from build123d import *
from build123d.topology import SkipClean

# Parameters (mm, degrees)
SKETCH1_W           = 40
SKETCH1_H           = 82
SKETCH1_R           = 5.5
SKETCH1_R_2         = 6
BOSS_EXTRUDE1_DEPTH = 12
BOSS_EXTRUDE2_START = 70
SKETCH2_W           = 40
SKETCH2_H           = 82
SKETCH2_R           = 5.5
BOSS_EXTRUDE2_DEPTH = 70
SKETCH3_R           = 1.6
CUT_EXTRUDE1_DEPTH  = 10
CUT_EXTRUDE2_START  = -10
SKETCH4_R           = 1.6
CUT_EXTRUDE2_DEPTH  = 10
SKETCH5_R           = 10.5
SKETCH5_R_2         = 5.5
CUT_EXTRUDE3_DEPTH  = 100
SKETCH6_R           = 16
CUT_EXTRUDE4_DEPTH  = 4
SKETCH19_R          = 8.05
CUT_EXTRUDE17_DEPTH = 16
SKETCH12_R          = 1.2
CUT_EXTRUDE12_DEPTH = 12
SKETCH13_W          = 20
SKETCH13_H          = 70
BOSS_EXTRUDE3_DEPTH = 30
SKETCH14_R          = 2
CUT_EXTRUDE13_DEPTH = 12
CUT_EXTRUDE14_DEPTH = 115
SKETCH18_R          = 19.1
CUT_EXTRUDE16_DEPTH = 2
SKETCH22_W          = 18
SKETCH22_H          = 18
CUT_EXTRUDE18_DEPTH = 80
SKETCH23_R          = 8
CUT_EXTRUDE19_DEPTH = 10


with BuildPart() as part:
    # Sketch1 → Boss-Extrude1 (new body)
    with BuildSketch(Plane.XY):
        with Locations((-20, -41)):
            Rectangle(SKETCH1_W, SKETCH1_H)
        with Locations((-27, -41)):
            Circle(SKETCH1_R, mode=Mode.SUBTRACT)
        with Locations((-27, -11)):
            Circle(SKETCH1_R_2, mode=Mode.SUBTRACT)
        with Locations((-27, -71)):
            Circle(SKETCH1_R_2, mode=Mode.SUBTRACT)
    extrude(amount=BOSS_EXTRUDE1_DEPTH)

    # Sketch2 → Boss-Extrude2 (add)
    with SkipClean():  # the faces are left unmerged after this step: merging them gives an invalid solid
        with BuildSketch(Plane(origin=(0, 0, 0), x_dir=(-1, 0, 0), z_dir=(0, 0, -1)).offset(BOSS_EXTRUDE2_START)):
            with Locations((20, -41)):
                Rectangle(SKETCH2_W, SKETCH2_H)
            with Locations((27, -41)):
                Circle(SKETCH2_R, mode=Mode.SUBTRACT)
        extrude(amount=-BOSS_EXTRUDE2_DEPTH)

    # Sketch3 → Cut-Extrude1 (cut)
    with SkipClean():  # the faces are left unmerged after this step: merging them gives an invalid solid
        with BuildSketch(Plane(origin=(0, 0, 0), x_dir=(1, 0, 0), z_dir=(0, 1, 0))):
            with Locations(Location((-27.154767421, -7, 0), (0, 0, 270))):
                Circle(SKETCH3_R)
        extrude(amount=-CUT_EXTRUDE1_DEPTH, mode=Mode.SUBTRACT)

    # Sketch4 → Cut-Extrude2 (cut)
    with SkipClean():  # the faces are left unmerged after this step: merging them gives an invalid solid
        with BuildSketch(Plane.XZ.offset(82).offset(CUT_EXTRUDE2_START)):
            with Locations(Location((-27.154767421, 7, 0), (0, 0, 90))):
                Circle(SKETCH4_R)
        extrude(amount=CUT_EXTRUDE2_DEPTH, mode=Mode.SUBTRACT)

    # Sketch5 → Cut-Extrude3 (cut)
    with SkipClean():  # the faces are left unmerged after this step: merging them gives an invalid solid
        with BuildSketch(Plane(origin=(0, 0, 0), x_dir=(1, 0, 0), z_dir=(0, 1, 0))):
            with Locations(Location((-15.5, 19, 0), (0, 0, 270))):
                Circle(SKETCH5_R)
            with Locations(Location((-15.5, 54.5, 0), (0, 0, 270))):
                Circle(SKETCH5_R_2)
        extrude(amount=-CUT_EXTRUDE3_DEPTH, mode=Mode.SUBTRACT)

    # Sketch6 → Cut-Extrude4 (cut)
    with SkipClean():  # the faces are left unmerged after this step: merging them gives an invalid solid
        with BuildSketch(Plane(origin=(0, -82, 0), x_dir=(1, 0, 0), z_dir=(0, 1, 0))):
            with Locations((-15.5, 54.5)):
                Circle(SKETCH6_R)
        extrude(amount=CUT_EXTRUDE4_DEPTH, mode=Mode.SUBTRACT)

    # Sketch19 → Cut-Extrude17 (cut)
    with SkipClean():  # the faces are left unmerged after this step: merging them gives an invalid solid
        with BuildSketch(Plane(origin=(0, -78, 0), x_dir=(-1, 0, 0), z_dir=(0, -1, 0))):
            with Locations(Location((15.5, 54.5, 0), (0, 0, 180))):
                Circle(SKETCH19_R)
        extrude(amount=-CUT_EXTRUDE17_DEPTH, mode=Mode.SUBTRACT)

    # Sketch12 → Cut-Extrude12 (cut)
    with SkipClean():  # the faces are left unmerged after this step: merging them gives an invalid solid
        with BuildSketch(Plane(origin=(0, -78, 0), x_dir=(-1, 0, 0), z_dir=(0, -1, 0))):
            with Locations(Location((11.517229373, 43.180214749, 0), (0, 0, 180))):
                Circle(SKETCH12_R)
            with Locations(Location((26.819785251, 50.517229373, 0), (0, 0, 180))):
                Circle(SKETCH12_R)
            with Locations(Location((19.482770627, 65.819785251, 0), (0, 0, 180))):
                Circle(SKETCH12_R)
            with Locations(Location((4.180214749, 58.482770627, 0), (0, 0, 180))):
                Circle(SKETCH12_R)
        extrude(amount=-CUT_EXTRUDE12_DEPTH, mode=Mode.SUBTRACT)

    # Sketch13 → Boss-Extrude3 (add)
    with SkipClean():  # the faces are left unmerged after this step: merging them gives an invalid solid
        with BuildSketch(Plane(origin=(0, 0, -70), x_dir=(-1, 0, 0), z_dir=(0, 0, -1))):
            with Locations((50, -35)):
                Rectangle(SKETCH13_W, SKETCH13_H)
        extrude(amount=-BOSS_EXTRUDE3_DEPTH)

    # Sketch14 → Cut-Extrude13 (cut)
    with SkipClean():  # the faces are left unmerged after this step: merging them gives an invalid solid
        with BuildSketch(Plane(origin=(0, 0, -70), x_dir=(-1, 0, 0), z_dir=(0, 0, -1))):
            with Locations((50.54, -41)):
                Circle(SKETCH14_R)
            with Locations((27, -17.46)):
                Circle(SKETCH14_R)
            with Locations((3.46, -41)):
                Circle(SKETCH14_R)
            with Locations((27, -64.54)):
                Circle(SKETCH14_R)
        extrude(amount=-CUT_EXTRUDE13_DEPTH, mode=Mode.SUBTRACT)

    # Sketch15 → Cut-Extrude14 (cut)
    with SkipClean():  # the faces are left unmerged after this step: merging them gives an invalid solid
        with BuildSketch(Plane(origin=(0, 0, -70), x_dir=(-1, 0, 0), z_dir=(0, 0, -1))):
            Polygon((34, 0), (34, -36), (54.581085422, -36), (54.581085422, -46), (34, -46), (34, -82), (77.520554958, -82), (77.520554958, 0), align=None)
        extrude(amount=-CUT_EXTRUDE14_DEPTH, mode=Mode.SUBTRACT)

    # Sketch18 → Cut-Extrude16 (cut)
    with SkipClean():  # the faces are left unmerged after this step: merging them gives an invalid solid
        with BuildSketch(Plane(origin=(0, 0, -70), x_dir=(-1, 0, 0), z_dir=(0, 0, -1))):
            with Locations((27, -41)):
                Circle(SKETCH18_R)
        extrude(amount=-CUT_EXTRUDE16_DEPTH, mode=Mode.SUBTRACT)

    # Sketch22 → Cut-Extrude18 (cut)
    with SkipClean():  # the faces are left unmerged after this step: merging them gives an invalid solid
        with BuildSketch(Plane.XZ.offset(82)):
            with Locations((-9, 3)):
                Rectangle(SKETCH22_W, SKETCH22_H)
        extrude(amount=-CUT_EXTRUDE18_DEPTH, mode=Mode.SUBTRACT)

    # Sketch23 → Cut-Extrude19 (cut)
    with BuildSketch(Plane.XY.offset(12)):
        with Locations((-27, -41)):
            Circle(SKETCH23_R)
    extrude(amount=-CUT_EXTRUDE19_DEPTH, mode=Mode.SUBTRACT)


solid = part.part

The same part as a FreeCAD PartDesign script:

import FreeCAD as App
import Part
import Sketcher

V = App.Vector


def add_polygon(sketch, points):
    """Adds a closed chain of lines whose ends are joined by coincident constraints."""
    first, n = sketch.GeometryCount, len(points)
    for a, b in zip(points, points[1:] + points[:1]):
        sketch.addGeometry(Part.LineSegment(App.Vector(*a, 0), App.Vector(*b, 0)), False)
    for i in range(n):
        sketch.addConstraint(Sketcher.Constraint("Coincident", first + i, 2, first + (i + 1) % n, 1))

doc = App.newDocument("Part")
body = doc.addObject("PartDesign::Body", "Body")

# Sketch on XY plane
sketch1 = body.newObject("Sketcher::SketchObject", "Sketch")
sketch1.AttachmentSupport = (doc.getObject("XY_Plane"), [""])
sketch1.MapMode = "FlatFace"
add_polygon(sketch1, [(-40, 0), (-40, -82), (0, -82), (0, 0)])  # lines 0-3
sketch1.addGeometry(Part.Circle(V(-27, -71, 0), V(0, 0, 1), 6), False)  # 4
sketch1.addGeometry(Part.Circle(V(-27, -41, 0), V(0, 0, 1), 6), False)  # 5
sketch1.addGeometry(Part.Circle(V(-27, -11, 0), V(0, 0, 1), 6), False)  # 6
sketch1.addConstraint(Sketcher.Constraint("Vertical", 0))
sketch1.addConstraint(Sketcher.Constraint("Horizontal", 1))
sketch1.addConstraint(Sketcher.Constraint("Vertical", 2))
sketch1.addConstraint(Sketcher.Constraint("Horizontal", 3))
sketch1.addConstraint(Sketcher.Constraint("Coincident", 2, 2, -1, 1))
sketch1.addConstraint(Sketcher.Constraint("Equal", 4, 6))
sketch1.addConstraint(Sketcher.Constraint("Vertical", 4, 3, 5, 3))
sketch1.addConstraint(Sketcher.Constraint("Vertical", 5, 3, 6, 3))
sketch1.addConstraint(Sketcher.Constraint("Diameter", 4, 12.0))
sketch1.addConstraint(Sketcher.Constraint("Diameter", 5, 11.0))
sketch1.addConstraint(Sketcher.Constraint("DistanceX", 1, 1, 1, 2, 40.0))
sketch1.addConstraint(Sketcher.Constraint("DistanceY", 0, 2, 0, 1, 82.0))
sketch1.addConstraint(Sketcher.Constraint("DistanceX", 4, 3, -1, 1, 27.0))
sketch1.addConstraint(Sketcher.Constraint("DistanceY", 4, 3, -1, 1, 71.0))
sketch1.addConstraint(Sketcher.Constraint("DistanceY", 5, 3, -1, 1, 41.0))
sketch1.addConstraint(Sketcher.Constraint("DistanceY", 6, 3, -1, 1, 11.0))
pad1 = body.newObject("PartDesign::Pad", "Pad")
pad1.Profile = sketch1
pad1.Length = 12

# Sketch on XY plane
sketch2 = body.newObject("Sketcher::SketchObject", "Sketch001")
sketch2.AttachmentSupport = (doc.getObject("XY_Plane"), [""])
sketch2.MapMode = "FlatFace"
sketch2.AttachmentOffset = App.Placement(V(0, 0, -70), App.Rotation())
add_polygon(sketch2, [(0, 0), (0, -82), (-40, -82), (-40, 0)])  # lines 0-3
sketch2.addGeometry(Part.Circle(V(-27, -41, 0), V(0, 0, 1), 6), False)  # 4
sketch2.addConstraint(Sketcher.Constraint("Vertical", 0))
sketch2.addConstraint(Sketcher.Constraint("Horizontal", 1))
sketch2.addConstraint(Sketcher.Constraint("Vertical", 2))
sketch2.addConstraint(Sketcher.Constraint("Horizontal", 3))
sketch2.addConstraint(Sketcher.Constraint("Coincident", 3, 2, -1, 1))
sketch2.addConstraint(Sketcher.Constraint("Diameter", 4, 11.0))
sketch2.addConstraint(Sketcher.Constraint("DistanceX", 1, 2, 1, 1, 40.0))
sketch2.addConstraint(Sketcher.Constraint("DistanceY", 0, 2, 0, 1, 82.0))
sketch2.addConstraint(Sketcher.Constraint("DistanceX", 4, 3, -1, 1, 27.0))
sketch2.addConstraint(Sketcher.Constraint("DistanceY", 4, 3, -1, 1, 41.0))
pad2 = body.newObject("PartDesign::Pad", "Pad001")
pad2.Profile = sketch2
pad2.Length = 70

# Sketch on XZ plane
sketch3 = body.newObject("Sketcher::SketchObject", "Sketch002")
sketch3.AttachmentSupport = (doc.getObject("XZ_Plane"), [""])
sketch3.MapMode = "FlatFace"
sketch3.addGeometry(Part.Circle(V(-27.2, 7, 0), V(0, 0, 1), 1.6), False)
sketch3.addConstraint(Sketcher.Constraint("Diameter", 0, 3.2))
sketch3.addConstraint(Sketcher.Constraint("DistanceY", -1, 1, 0, 3, 7.0))
sketch3.addConstraint(Sketcher.Constraint("DistanceX", 0, 3, -1, 1, 27.154767))
pocket1 = body.newObject("PartDesign::Pocket", "Pocket")
pocket1.Profile = sketch3
pocket1.Length = 10
pocket1.Reversed = True

# Sketch on XZ plane
sketch4 = body.newObject("Sketcher::SketchObject", "Sketch003")
sketch4.AttachmentSupport = (doc.getObject("XZ_Plane"), [""])
sketch4.MapMode = "FlatFace"
sketch4.AttachmentOffset = App.Placement(V(0, 0, 72), App.Rotation())
sketch4.addGeometry(Part.Circle(V(-27.2, 7, 0), V(0, 0, 1), 1.6), False)
sketch4.addConstraint(Sketcher.Constraint("Diameter", 0, 3.2))
sketch4.addConstraint(Sketcher.Constraint("DistanceY", -1, 1, 0, 3, 7.0))
sketch4.addConstraint(Sketcher.Constraint("DistanceX", 0, 3, -1, 1, 27.154767))
pocket2 = body.newObject("PartDesign::Pocket", "Pocket001")
pocket2.Profile = sketch4
pocket2.Length = 10
pocket2.Reversed = True

# Sketch on XZ plane
sketch5 = body.newObject("Sketcher::SketchObject", "Sketch004")
sketch5.AttachmentSupport = (doc.getObject("XZ_Plane"), [""])
sketch5.MapMode = "FlatFace"
sketch5.addGeometry(Part.Circle(V(-16, -19, 0), V(0, 0, 1), 10), False)
sketch5.addGeometry(Part.Circle(V(-16, -54, 0), V(0, 0, 1), 6), False)
sketch5.addConstraint(Sketcher.Constraint("Vertical", 0, 3, 1, 3))
sketch5.addConstraint(Sketcher.Constraint("Diameter", 0, 21.0))
sketch5.addConstraint(Sketcher.Constraint("Diameter", 1, 11.0))
sketch5.addConstraint(Sketcher.Constraint("DistanceY", 0, 3, -1, 1, 19.0))
sketch5.addConstraint(Sketcher.Constraint("DistanceX", 0, 3, -1, 1, 15.5))
sketch5.addConstraint(Sketcher.Constraint("DistanceY", 1, 3, -1, 1, 54.5))
pocket3 = body.newObject("PartDesign::Pocket", "Pocket002")
pocket3.Profile = sketch5
pocket3.Length = 100
pocket3.Reversed = True

# Sketch on XZ plane
sketch6 = body.newObject("Sketcher::SketchObject", "Sketch005")
sketch6.AttachmentSupport = (doc.getObject("XZ_Plane"), [""])
sketch6.MapMode = "FlatFace"
sketch6.AttachmentOffset = App.Placement(V(0, 0, 82), App.Rotation())
sketch6.addGeometry(Part.Circle(V(-16, -54, 0), V(0, 0, 1), 16), False)
sketch6.addConstraint(Sketcher.Constraint("Diameter", 0, 32.0))
sketch6.addConstraint(Sketcher.Constraint("DistanceX", 0, 3, -1, 1, 15.5))
sketch6.addConstraint(Sketcher.Constraint("DistanceY", 0, 3, -1, 1, 54.5))
pocket4 = body.newObject("PartDesign::Pocket", "Pocket003")
pocket4.Profile = sketch6
pocket4.Length = 4

# Sketch on XZ plane
sketch7 = body.newObject("Sketcher::SketchObject", "Sketch006")
sketch7.AttachmentSupport = (doc.getObject("XZ_Plane"), [""])
sketch7.MapMode = "FlatFace"
sketch7.AttachmentOffset = App.Placement(V(0, 0, 78), App.Rotation())
sketch7.addGeometry(Part.Circle(V(-16, -54, 0), V(0, 0, 1), 8), False)
sketch7.addConstraint(Sketcher.Constraint("Diameter", 0, 16.1))
sketch7.addConstraint(Sketcher.Constraint("DistanceX", 0, 3, -1, 1, 15.5))
sketch7.addConstraint(Sketcher.Constraint("DistanceY", 0, 3, -1, 1, 54.5))
pocket5 = body.newObject("PartDesign::Pocket", "Pocket004")
pocket5.Profile = sketch7
pocket5.Length = 16

# Sketch on XZ plane
sketch8 = body.newObject("Sketcher::SketchObject", "Sketch007")
sketch8.AttachmentSupport = (doc.getObject("XZ_Plane"), [""])
sketch8.MapMode = "FlatFace"
sketch8.AttachmentOffset = App.Placement(V(0, 0, 78), App.Rotation())
sketch8.addGeometry(Part.Circle(V(-11.5, -43.2, 0), V(0, 0, 1), 1.2), False)
sketch8.addGeometry(Part.Circle(V(-26.8, -50.5, 0), V(0, 0, 1), 1.2), False)
sketch8.addGeometry(Part.Circle(V(-19.5, -65.8, 0), V(0, 0, 1), 1.2), False)
sketch8.addGeometry(Part.Circle(V(-4.2, -58.5, 0), V(0, 0, 1), 1.2), False)
sketch8.addConstraint(Sketcher.Constraint("Equal", 0, 1))
sketch8.addConstraint(Sketcher.Constraint("Equal", 1, 2))
sketch8.addConstraint(Sketcher.Constraint("Equal", 2, 3))
sketch8.addConstraint(Sketcher.Constraint("Diameter", 0, 2.4))
sketch8.addConstraint(Sketcher.Constraint("DistanceX", 0, 3, -1, 1, 11.517229))
sketch8.addConstraint(Sketcher.Constraint("DistanceY", 1, 3, -1, 1, 50.517229))
sketch8.addConstraint(Sketcher.Constraint("DistanceX", 2, 3, -1, 1, 19.482771))
sketch8.addConstraint(Sketcher.Constraint("DistanceY", 3, 3, -1, 1, 58.482771))
sketch8.addConstraint(Sketcher.Constraint("DistanceY", 2, 3, 0, 3, 22.639571))
sketch8.addConstraint(Sketcher.Constraint("DistanceX", 1, 3, 3, 3, 22.639571))
sketch8.addConstraint(Sketcher.Constraint("DistanceY", 0, 3, -1, 1, 43.180215))
sketch8.addConstraint(Sketcher.Constraint("DistanceX", 1, 3, -1, 1, 26.819785))
pocket6 = body.newObject("PartDesign::Pocket", "Pocket005")
pocket6.Profile = sketch8
pocket6.Length = 12

# Sketch on XY plane
sketch9 = body.newObject("Sketcher::SketchObject", "Sketch008")
sketch9.AttachmentSupport = (doc.getObject("XY_Plane"), [""])
sketch9.MapMode = "FlatFace"
sketch9.AttachmentOffset = App.Placement(V(0, 0, -70), App.Rotation())
add_polygon(sketch9, [(-40, 0), (-40, -70), (-60, -70), (-60, 0)])  # lines 0-3
sketch9.addConstraint(Sketcher.Constraint("Vertical", 0))
sketch9.addConstraint(Sketcher.Constraint("Horizontal", 1))
sketch9.addConstraint(Sketcher.Constraint("Vertical", 2))
sketch9.addConstraint(Sketcher.Constraint("Horizontal", 3))
sketch9.addConstraint(Sketcher.Constraint("PointOnObject", 2, 2, -1))
sketch9.addConstraint(Sketcher.Constraint("DistanceX", 1, 2, 1, 1, 20.0))
sketch9.addConstraint(Sketcher.Constraint("DistanceY", 0, 2, 0, 1, 70.0))
sketch9.addConstraint(Sketcher.Constraint("DistanceX", 0, 2, -1, 1, 40.0))
pad3 = body.newObject("PartDesign::Pad", "Pad002")
pad3.Profile = sketch9
pad3.Length = 30

# Sketch on XY plane
sketch10 = body.newObject("Sketcher::SketchObject", "Sketch009")
sketch10.AttachmentSupport = (doc.getObject("XY_Plane"), [""])
sketch10.MapMode = "FlatFace"
sketch10.AttachmentOffset = App.Placement(V(0, 0, -70), App.Rotation())
sketch10.addGeometry(Part.Circle(V(-50.5, -41, 0), V(0, 0, 1), 2), False)
sketch10.addGeometry(Part.Circle(V(-27, -17.5, 0), V(0, 0, 1), 2), False)
sketch10.addGeometry(Part.Circle(V(-3.5, -41, 0), V(0, 0, 1), 2), False)
sketch10.addGeometry(Part.Circle(V(-27, -64.5, 0), V(0, 0, 1), 2), False)
sketch10.addConstraint(Sketcher.Constraint("Equal", 0, 1))
sketch10.addConstraint(Sketcher.Constraint("Equal", 1, 2))
sketch10.addConstraint(Sketcher.Constraint("Equal", 2, 3))
sketch10.addConstraint(Sketcher.Constraint("Horizontal", 0, 3, 2, 3))
sketch10.addConstraint(Sketcher.Constraint("Vertical", 1, 3, 3, 3))
sketch10.addConstraint(Sketcher.Constraint("Diameter", 0, 4.0))
sketch10.addConstraint(Sketcher.Constraint("DistanceY", 0, 3, -1, 1, 41.0))
sketch10.addConstraint(Sketcher.Constraint("DistanceX", 1, 3, -1, 1, 27.0))
sketch10.addConstraint(Sketcher.Constraint("DistanceX", 0, 3, -1, 1, 50.54))
sketch10.addConstraint(Sketcher.Constraint("DistanceY", 1, 3, -1, 1, 17.46))
sketch10.addConstraint(Sketcher.Constraint("DistanceX", 2, 3, -1, 1, 3.46))
sketch10.addConstraint(Sketcher.Constraint("DistanceY", 3, 3, -1, 1, 64.54))
pocket7 = body.newObject("PartDesign::Pocket", "Pocket006")
pocket7.Profile = sketch10
pocket7.Length = 12
pocket7.Reversed = True

# Sketch on XY plane
sketch11 = body.newObject("Sketcher::SketchObject", "Sketch010")
sketch11.AttachmentSupport = (doc.getObject("XY_Plane"), [""])
sketch11.MapMode = "FlatFace"
sketch11.AttachmentOffset = App.Placement(V(0, 0, -70), App.Rotation())
add_polygon(sketch11, [(-34, 0), (-34, -36), (-55, -36), (-55, -46), (-34, -46), (-34, -82), (-78, -82), (-78, 0)])  # lines 0-7
sketch11.addConstraint(Sketcher.Constraint("Vertical", 0))
sketch11.addConstraint(Sketcher.Constraint("Horizontal", 1))
sketch11.addConstraint(Sketcher.Constraint("Vertical", 2))
sketch11.addConstraint(Sketcher.Constraint("Horizontal", 3))
sketch11.addConstraint(Sketcher.Constraint("Vertical", 4))
sketch11.addConstraint(Sketcher.Constraint("Horizontal", 5))
sketch11.addConstraint(Sketcher.Constraint("Vertical", 6))
sketch11.addConstraint(Sketcher.Constraint("Horizontal", 7))
sketch11.addConstraint(Sketcher.Constraint("PointOnObject", 6, 2, -1))
sketch11.addConstraint(Sketcher.Constraint("Vertical", 0, 2, 3, 2))
sketch11.addConstraint(Sketcher.Constraint("Equal", 0, 4))
sketch11.addConstraint(Sketcher.Constraint("DistanceY", 0, 2, 0, 1, 36.0))
sketch11.addConstraint(Sketcher.Constraint("DistanceY", 2, 2, 2, 1, 10.0))
sketch11.addConstraint(Sketcher.Constraint("DistanceX", 0, 2, -1, 1, 34.0))
sketch11.addConstraint(Sketcher.Constraint("DistanceX", 1, 2, 1, 1, 20.581085))
sketch11.addConstraint(Sketcher.Constraint("DistanceX", 5, 2, 5, 1, 43.520555))
pocket8 = body.newObject("PartDesign::Pocket", "Pocket007")
pocket8.Profile = sketch11
pocket8.Length = 115
pocket8.Reversed = True

# Sketch on XY plane
sketch12 = body.newObject("Sketcher::SketchObject", "Sketch011")
sketch12.AttachmentSupport = (doc.getObject("XY_Plane"), [""])
sketch12.MapMode = "FlatFace"
sketch12.AttachmentOffset = App.Placement(V(0, 0, -70), App.Rotation())
sketch12.addGeometry(Part.Circle(V(-27, -41, 0), V(0, 0, 1), 19), False)
sketch12.addConstraint(Sketcher.Constraint("Diameter", 0, 38.2))
sketch12.addConstraint(Sketcher.Constraint("DistanceX", 0, 3, -1, 1, 27.0))
sketch12.addConstraint(Sketcher.Constraint("DistanceY", 0, 3, -1, 1, 41.0))
pocket9 = body.newObject("PartDesign::Pocket", "Pocket008")
pocket9.Profile = sketch12
pocket9.Length = 2
pocket9.Reversed = True

# Sketch on XZ plane
sketch13 = body.newObject("Sketcher::SketchObject", "Sketch012")
sketch13.AttachmentSupport = (doc.getObject("XZ_Plane"), [""])
sketch13.MapMode = "FlatFace"
sketch13.AttachmentOffset = App.Placement(V(0, 0, 82), App.Rotation())
add_polygon(sketch13, [(-18, 12), (-18, -6), (0, -6), (0, 12)])  # lines 0-3
sketch13.addConstraint(Sketcher.Constraint("Vertical", 0))
sketch13.addConstraint(Sketcher.Constraint("Horizontal", 1))
sketch13.addConstraint(Sketcher.Constraint("Vertical", 2))
sketch13.addConstraint(Sketcher.Constraint("Horizontal", 3))
sketch13.addConstraint(Sketcher.Constraint("PointOnObject", 1, 2, -2))
sketch13.addConstraint(Sketcher.Constraint("Equal", 3, 0))
sketch13.addConstraint(Sketcher.Constraint("DistanceX", 1, 1, 1, 2, 18.0))
sketch13.addConstraint(Sketcher.Constraint("DistanceY", 0, 2, -1, 1, 6.0))
pocket10 = body.newObject("PartDesign::Pocket", "Pocket009")
pocket10.Profile = sketch13
pocket10.Length = 80

# Sketch on XY plane
sketch14 = body.newObject("Sketcher::SketchObject", "Sketch013")
sketch14.AttachmentSupport = (doc.getObject("XY_Plane"), [""])
sketch14.MapMode = "FlatFace"
sketch14.AttachmentOffset = App.Placement(V(0, 0, 12), App.Rotation())
sketch14.addGeometry(Part.Circle(V(-27, -41, 0), V(0, 0, 1), 8), False)
sketch14.addConstraint(Sketcher.Constraint("Diameter", 0, 16.0))
sketch14.addConstraint(Sketcher.Constraint("DistanceX", 0, 3, -1, 1, 27.0))
sketch14.addConstraint(Sketcher.Constraint("DistanceY", 0, 3, -1, 1, 41.0))
pocket11 = body.newObject("PartDesign::Pocket", "Pocket010")
pocket11.Profile = sketch14
pocket11.Length = 10

doc.recompute()
